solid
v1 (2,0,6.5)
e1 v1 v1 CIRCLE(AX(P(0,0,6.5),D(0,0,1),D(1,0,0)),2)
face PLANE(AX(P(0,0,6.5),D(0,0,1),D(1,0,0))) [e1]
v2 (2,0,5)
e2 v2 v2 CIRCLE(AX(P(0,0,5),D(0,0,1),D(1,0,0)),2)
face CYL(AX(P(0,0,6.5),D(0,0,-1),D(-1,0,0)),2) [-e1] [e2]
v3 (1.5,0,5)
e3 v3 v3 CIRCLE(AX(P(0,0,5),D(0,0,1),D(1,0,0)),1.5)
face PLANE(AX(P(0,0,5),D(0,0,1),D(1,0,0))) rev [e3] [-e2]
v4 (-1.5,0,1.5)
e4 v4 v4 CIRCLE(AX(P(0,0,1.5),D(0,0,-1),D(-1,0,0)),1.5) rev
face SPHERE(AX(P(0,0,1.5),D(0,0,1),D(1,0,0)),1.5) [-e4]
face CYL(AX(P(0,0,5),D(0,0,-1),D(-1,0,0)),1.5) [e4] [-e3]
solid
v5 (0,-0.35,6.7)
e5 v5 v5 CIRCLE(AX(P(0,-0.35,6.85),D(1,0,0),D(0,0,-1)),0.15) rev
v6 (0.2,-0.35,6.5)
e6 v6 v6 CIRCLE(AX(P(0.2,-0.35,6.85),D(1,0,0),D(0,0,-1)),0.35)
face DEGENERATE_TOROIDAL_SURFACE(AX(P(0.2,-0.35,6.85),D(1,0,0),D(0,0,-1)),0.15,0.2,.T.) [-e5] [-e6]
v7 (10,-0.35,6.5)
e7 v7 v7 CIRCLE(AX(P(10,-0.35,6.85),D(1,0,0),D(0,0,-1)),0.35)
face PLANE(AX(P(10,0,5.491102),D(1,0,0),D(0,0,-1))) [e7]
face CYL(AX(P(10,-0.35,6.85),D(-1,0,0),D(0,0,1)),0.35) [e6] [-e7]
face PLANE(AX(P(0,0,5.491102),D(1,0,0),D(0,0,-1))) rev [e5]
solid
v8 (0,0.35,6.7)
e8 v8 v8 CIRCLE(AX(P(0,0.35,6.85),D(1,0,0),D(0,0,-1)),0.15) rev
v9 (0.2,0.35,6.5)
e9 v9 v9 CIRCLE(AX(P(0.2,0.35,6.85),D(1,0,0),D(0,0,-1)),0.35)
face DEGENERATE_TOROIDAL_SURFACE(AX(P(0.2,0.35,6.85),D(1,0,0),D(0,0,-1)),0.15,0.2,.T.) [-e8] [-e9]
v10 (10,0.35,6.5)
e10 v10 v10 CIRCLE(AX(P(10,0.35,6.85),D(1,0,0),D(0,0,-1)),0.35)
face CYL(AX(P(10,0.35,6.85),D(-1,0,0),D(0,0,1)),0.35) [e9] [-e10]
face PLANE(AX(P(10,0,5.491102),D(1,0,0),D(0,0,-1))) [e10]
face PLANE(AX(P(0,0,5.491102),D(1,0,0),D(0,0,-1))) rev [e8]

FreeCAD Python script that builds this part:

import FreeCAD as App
import Part
import Sketcher


def edges_at(feature, points):
    """Names of the edges that pass closest to the given points."""
    edges = feature.Shape.Edges
    near = lambda p: min(range(len(edges)), key=lambda i: edges[i].distToShape(Part.Vertex(*p))[0])
    return sorted({f"Edge{near(p) + 1}" for p in points})

doc = App.newDocument("Part")
body = doc.addObject("PartDesign::Body", "Body")

sketch1 = body.newObject("Sketcher::SketchObject", "Sketch")
sketch1.AttachmentSupport = (doc.getObject("XY_Plane"), [""])
sketch1.MapMode = "FlatFace"
sketch1.addGeometry(Part.Circle(App.Vector(0, 0, 0), App.Vector(0, 0, 1), 1.5), False)
sketch1.addConstraint(Sketcher.Constraint("Coincident", 0, 3, -1, 1))
sketch1.addConstraint(Sketcher.Constraint("Diameter", 0, 3.0))
pad1 = body.newObject("PartDesign::Pad", "Pad")
pad1.Profile = sketch1
pad1.Length = 5

sketch2 = body.newObject("Sketcher::SketchObject", "Sketch001")
sketch2.AttachmentSupport = (doc.getObject("XY_Plane"), [""])
sketch2.MapMode = "FlatFace"
sketch2.AttachmentOffset = App.Placement(App.Vector(0, 0, 5), App.Rotation())
sketch2.addGeometry(Part.Circle(App.Vector(0, 0, 0), App.Vector(0, 0, 1), 2), False)
sketch2.addConstraint(Sketcher.Constraint("Coincident", 0, 3, -1, 1))
sketch2.addConstraint(Sketcher.Constraint("Diameter", 0, 4.0))
pad2 = body.newObject("PartDesign::Pad", "Pad001")
pad2.Profile = sketch2
pad2.Length = 1.5
doc.recompute()

fillet = body.newObject("PartDesign::Fillet", "Fillet")
fillet.Base = (pad2, edges_at(pad2, [(-1.5, 0, 0)]))
fillet.Radius = 1.5
body2 = doc.addObject("PartDesign::Body", "Body001")

sketch3 = body2.newObject("Sketcher::SketchObject", "Sketch002")
sketch3.AttachmentSupport = (doc.getObject("YZ_Plane001"), [""])
sketch3.MapMode = "FlatFace"
sketch3.addGeometry(Part.Circle(App.Vector(-0.35, 6.85, 0), App.Vector(0, 0, 1), 0.35), False)
sketch3.addConstraint(Sketcher.Constraint("Diameter", 0, 0.7))
sketch3.addConstraint(Sketcher.Constraint("DistanceX", 0, 3, -1, 1, 0.35))
sketch3.addConstraint(Sketcher.Constraint("DistanceY", -1, 1, 0, 3, 6.85))
pad3 = body2.newObject("PartDesign::Pad", "Pad002")
pad3.Profile = sketch3
pad3.Length = 10
doc.recompute()

fillet2 = body2.newObject("PartDesign::Fillet", "Fillet001")
fillet2.Base = (pad3, edges_at(pad3, [(0, -0.35, 7.2)]))
fillet2.Radius = 0.2
body3 = doc.addObject("PartDesign::Body", "Body002")

sketch4 = body3.newObject("Sketcher::SketchObject", "Sketch003")
sketch4.AttachmentSupport = (doc.getObject("YZ_Plane002"), [""])
sketch4.MapMode = "FlatFace"
sketch4.addGeometry(Part.Circle(App.Vector(0.35, 6.85, 0), App.Vector(0, 0, 1), 0.35), False)
sketch4.addConstraint(Sketcher.Constraint("Diameter", 0, 0.7))
sketch4.addConstraint(Sketcher.Constraint("DistanceX", -1, 1, 0, 3, 0.35))
sketch4.addConstraint(Sketcher.Constraint("DistanceY", -1, 1, 0, 3, 6.85))
pad4 = body3.newObject("PartDesign::Pad", "Pad003")
pad4.Profile = sketch4
pad4.Length = 10
doc.recompute()

fillet3 = body3.newObject("PartDesign::Fillet", "Fillet002")
fillet3.Base = (pad4, edges_at(pad4, [(0, 0.35, 7.2)]))
fillet3.Radius = 0.2

doc.recompute()
